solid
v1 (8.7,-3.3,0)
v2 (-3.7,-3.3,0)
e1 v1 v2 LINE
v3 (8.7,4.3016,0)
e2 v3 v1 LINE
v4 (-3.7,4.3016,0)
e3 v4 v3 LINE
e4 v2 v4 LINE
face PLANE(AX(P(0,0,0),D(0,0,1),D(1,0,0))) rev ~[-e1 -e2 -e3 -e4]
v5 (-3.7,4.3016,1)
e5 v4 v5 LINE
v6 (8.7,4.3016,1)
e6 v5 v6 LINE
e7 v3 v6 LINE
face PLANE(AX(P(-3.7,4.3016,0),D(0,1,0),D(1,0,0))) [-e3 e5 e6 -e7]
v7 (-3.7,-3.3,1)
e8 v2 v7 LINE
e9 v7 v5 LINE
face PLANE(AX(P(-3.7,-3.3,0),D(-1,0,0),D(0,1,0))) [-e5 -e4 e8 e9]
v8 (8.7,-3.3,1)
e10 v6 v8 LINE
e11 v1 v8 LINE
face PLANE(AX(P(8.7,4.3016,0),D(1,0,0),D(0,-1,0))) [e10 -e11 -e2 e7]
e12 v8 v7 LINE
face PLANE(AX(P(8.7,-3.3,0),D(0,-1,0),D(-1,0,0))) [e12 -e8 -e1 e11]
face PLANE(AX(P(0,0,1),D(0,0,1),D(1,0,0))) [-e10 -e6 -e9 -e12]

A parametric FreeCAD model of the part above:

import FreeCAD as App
import Part
import Sketcher

doc = App.newDocument("Part")
body = doc.addObject("PartDesign::Body", "Body")

# Sketch on XY plane
sketch1 = doc.addObject("Sketcher::SketchObject", "Sketch")
body.addObject(sketch1)
sketch1.AttachmentSupport = (doc.XY_Plane, [""])
sketch1.MapMode = "FlatFace"
sketch1.addGeometry([
    Part.LineSegment(App.Vector(8.7, 4.3016, 0), App.Vector(-3.7, 4.3016, 0)),
    Part.LineSegment(App.Vector(-3.7, 4.3016, 0), App.Vector(-3.7, -3.3, 0)),
    Part.LineSegment(App.Vector(-3.7, -3.3, 0), App.Vector(8.7, -3.3, 0)),
    Part.LineSegment(App.Vector(8.7, -3.3, 0), App.Vector(8.7, 4.3016, 0)),
], False)
sketch1.addConstraint([
    Sketcher.Constraint("Coincident", 0, 2, 1, 1),
    Sketcher.Constraint("Coincident", 1, 2, 2, 1),
    Sketcher.Constraint("Coincident", 2, 2, 3, 1),
    Sketcher.Constraint("Coincident", 3, 2, 0, 1),
    Sketcher.Constraint("Horizontal", 0),
    Sketcher.Constraint("Vertical", 1),
    Sketcher.Constraint("Horizontal", 2),
    Sketcher.Constraint("Vertical", 3),
    Sketcher.Constraint("DistanceX", 0, 2, 0, 1, 12.4),
    Sketcher.Constraint("DistanceX", 0, 2, -1, 1, 3.7),
    Sketcher.Constraint("DistanceY", 1, 2, -1, 1, 3.3),
    Sketcher.Constraint("DistanceY", 1, 2, 1, 1, 7.6016),
])
pad1 = doc.addObject("PartDesign::Pad", "Pad")
body.addObject(pad1)
pad1.Profile = sketch1
pad1.Length = 1

doc.recompute()
